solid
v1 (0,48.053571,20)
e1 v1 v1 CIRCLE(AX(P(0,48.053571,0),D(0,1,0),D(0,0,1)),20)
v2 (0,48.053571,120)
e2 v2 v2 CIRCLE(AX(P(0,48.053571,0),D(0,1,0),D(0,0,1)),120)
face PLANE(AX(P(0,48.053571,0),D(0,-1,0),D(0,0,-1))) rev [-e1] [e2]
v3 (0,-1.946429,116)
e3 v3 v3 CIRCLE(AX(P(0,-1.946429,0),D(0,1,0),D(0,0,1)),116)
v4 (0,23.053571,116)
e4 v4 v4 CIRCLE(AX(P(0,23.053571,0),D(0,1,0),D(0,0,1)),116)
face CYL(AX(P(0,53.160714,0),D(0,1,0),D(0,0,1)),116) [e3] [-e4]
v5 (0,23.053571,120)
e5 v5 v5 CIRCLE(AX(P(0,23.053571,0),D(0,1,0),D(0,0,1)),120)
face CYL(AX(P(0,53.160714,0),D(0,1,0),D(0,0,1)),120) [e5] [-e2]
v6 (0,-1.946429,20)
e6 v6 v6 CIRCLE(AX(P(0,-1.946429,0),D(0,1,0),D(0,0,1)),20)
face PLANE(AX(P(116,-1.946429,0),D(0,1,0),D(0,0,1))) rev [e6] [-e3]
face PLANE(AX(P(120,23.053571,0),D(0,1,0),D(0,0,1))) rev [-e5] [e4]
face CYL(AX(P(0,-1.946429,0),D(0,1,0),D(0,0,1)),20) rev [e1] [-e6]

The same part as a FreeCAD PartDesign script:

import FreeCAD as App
import Part
import Sketcher
Q = App.Units.Quantity


def add_polygon(sketch, points):
    """Adds a closed chain of lines whose ends are joined by coincident constraints."""
    first, n = sketch.GeometryCount, len(points)
    for a, b in zip(points, points[1:] + points[:1]):
        sketch.addGeometry(Part.LineSegment(App.Vector(*a, 0), App.Vector(*b, 0)), False)
    for i in range(n):
        sketch.addConstraint(Sketcher.Constraint("Coincident", first + i, 2, first + (i + 1) % n, 1))

doc = App.newDocument("Part")
body = doc.addObject("PartDesign::Body", "Body")

# Sketch on XY plane
sketch1 = body.newObject("Sketcher::SketchObject", "Sketch")
sketch1.AttachmentSupport = (doc.getObject("XY_Plane"), [""])
sketch1.MapMode = "FlatFace"
add_polygon(sketch1, [(120, 48.053571), (0, 48.053571), (0, -1.946429), (116, -1.946429), (116, 23.053571), (120, 23.053571)])  # lines 0-5
sketch1.addConstraint([
    Sketcher.Constraint("Horizontal", 0),
    Sketcher.Constraint("Vertical", 1),
    Sketcher.Constraint("Horizontal", 2),
    Sketcher.Constraint("Vertical", 3),
    Sketcher.Constraint("Horizontal", 4),
    Sketcher.Constraint("Vertical", 5),
    Sketcher.Constraint("PointOnObject", 0, 2, -2),
    Sketcher.Constraint("Equal", 3, 5),
    Sketcher.Constraint("DistanceX", 0, 2, 0, 1, Q("120 mm")),
    Sketcher.Constraint("DistanceX", 2, 1, 2, 2, Q("116 mm")),
    Sketcher.Constraint("DistanceY", 1, 2, 1, 1, Q("50 mm")),
    Sketcher.Constraint("DistanceY", -1, 1, 0, 2, Q("48.053571 mm")),
])
revolution = body.newObject("PartDesign::Revolution", "Revolution")
revolution.Profile = sketch1
revolution.ReferenceAxis = (sketch1, ["V_Axis"])
revolution.Angle = 360

# Sketch on XZ plane
sketch2 = body.newObject("Sketcher::SketchObject", "Sketch001")
sketch2.AttachmentSupport = (doc.getObject("XZ_Plane"), [""])
sketch2.MapMode = "FlatFace"
sketch2.AttachmentOffset = App.Placement(App.Vector(0, 0, -48.053571), App.Rotation())
sketch2.addGeometry(Part.Circle(App.Vector(0, 0, 0), App.Vector(0, 0, 1), 20), False)
sketch2.addConstraint([
    Sketcher.Constraint("Coincident", 0, 3, -1, 1),
    Sketcher.Constraint("Diameter", 0, Q("40 mm")),
])
pocket1 = body.newObject("PartDesign::Pocket", "Pocket")
pocket1.Profile = sketch2
pocket1.Type = "ThroughAll"
pocket1.Reversed = True

doc.recompute()
